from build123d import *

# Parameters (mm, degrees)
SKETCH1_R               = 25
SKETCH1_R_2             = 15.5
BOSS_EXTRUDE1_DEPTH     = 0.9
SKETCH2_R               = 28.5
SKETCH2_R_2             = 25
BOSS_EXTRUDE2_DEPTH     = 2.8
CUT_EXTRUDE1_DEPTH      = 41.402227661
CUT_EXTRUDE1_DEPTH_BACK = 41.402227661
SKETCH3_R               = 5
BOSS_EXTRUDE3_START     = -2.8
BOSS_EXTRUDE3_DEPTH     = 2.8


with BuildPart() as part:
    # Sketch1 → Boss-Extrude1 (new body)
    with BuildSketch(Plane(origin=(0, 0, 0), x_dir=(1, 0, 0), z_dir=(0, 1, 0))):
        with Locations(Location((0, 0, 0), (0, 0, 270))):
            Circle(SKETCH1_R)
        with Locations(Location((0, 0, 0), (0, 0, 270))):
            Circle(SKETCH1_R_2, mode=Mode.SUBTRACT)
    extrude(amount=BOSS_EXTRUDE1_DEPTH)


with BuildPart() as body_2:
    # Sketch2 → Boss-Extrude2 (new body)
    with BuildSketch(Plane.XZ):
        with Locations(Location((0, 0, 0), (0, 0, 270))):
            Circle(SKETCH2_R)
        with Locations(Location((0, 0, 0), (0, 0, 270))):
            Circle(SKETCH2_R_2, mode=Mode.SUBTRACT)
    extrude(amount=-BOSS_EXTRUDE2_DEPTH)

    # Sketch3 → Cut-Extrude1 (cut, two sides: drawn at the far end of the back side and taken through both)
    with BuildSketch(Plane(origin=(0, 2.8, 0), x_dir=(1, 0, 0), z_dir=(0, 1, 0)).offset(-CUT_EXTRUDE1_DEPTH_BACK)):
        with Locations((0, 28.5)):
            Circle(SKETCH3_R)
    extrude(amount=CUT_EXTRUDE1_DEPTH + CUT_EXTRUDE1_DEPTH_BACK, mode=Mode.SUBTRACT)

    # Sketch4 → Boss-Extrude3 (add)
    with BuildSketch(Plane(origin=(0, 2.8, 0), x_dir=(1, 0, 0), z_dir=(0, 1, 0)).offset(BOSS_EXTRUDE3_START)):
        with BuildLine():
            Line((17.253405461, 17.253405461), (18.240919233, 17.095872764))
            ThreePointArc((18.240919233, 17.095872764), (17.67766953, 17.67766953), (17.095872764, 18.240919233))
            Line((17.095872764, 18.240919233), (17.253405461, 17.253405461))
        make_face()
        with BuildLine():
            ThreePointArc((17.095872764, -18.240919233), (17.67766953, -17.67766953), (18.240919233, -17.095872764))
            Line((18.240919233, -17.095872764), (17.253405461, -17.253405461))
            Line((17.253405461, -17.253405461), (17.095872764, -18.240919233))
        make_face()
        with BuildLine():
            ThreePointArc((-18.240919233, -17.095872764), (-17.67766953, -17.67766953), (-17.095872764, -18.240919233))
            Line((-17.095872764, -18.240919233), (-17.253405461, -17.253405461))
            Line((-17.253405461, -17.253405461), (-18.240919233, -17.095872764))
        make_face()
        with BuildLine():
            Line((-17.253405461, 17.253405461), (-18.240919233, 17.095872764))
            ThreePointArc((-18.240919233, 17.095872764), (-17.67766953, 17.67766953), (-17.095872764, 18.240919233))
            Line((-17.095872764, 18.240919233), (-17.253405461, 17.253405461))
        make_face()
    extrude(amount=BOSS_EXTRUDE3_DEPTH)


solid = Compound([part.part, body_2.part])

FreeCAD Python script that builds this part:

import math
import FreeCAD as App
import Part
import Sketcher

doc = App.newDocument("Part")
body = doc.addObject("PartDesign::Body", "Body")

# Sketch on XZ plane
sketch1 = body.newObject("Sketcher::SketchObject", "Sketch")
sketch1.AttachmentSupport = (doc.getObject("XZ_Plane"), [""])
sketch1.MapMode = "FlatFace"
sketch1.addGeometry([
    Part.Circle(App.Vector(0, 0, 0), App.Vector(0, 0, 1), 25),
    Part.Circle(App.Vector(0, 0, 0), App.Vector(0, 0, 1), 16),
], False)
sketch1.addConstraint([
    Sketcher.Constraint("Coincident", 0, 3, -1, 1),
    Sketcher.Constraint("Coincident", 1, 3, -1, 1),
    Sketcher.Constraint("Diameter", 0, 50.0),
    Sketcher.Constraint("Diameter", 1, 31.0),
])
pad1 = body.newObject("PartDesign::Pad", "Pad")
pad1.Profile = sketch1
pad1.Length = 0.9
pad1.Reversed = True
body2 = doc.addObject("PartDesign::Body", "Body001")

# Sketch on XZ plane
sketch2 = body2.newObject("Sketcher::SketchObject", "Sketch001")
sketch2.AttachmentSupport = (doc.getObject("XZ_Plane001"), [""])
sketch2.MapMode = "FlatFace"
sketch2.addGeometry([
    Part.Circle(App.Vector(0, 0, 0), App.Vector(0, 0, 1), 28),
    Part.Circle(App.Vector(0, 0, 0), App.Vector(0, 0, 1), 25),
], False)
sketch2.addConstraint([
    Sketcher.Constraint("Coincident", 0, 3, -1, 1),
    Sketcher.Constraint("Coincident", 1, 3, -1, 1),
    Sketcher.Constraint("Diameter", 0, 57.0),
    Sketcher.Constraint("Diameter", 1, 50.0),
])
pad2 = body2.newObject("PartDesign::Pad", "Pad001")
pad2.Profile = sketch2
pad2.Length = 2.8
pad2.Reversed = True

# Sketch on XZ plane
sketch3 = body2.newObject("Sketcher::SketchObject", "Sketch002")
sketch3.AttachmentSupport = (doc.getObject("XZ_Plane001"), [""])
sketch3.MapMode = "FlatFace"
sketch3.AttachmentOffset = App.Placement(App.Vector(0, 0, -2.8), App.Rotation())
sketch3.addGeometry(Part.Circle(App.Vector(0, -28, 0), App.Vector(0, 0, 1), 5), False)
sketch3.addConstraint([
    Sketcher.Constraint("PointOnObject", 0, 3, -2),
    Sketcher.Constraint("Diameter", 0, 10.0),
    Sketcher.Constraint("DistanceY", 0, 3, -1, 1, 28.5),
])
pocket1 = body2.newObject("PartDesign::Pocket", "Pocket")
pocket1.Profile = sketch3
pocket1.Type = "ThroughAll"
pocket1.Midplane = True

# Sketch on XZ plane
sketch4 = body2.newObject("Sketcher::SketchObject", "Sketch003")
sketch4.AttachmentSupport = (doc.getObject("XZ_Plane001"), [""])
sketch4.MapMode = "FlatFace"
sketch4.addGeometry([
    Part.LineSegment(App.Vector(17.3, -17.3, 0), App.Vector(18.2, -17.1, 0)),  # 0
    Part.ArcOfCircle(Part.Circle(App.Vector(0, 0, 0), App.Vector(0, 0, 1), 25), math.radians(-46.86), math.radians(-43.14)),  # 1
    Part.LineSegment(App.Vector(17.1, -18.2, 0), App.Vector(17.3, -17.3, 0)),  # 2
    Part.ArcOfCircle(Part.Circle(App.Vector(0, 0, 0), App.Vector(0, 0, 1), 25), math.radians(43.14), math.radians(46.86)),  # 3
    Part.LineSegment(App.Vector(18.2, 17.1, 0), App.Vector(17.3, 17.3, 0)),  # 4
    Part.LineSegment(App.Vector(17.3, 17.3, 0), App.Vector(17.1, 18.2, 0)),  # 5
    Part.ArcOfCircle(Part.Circle(App.Vector(0, 0, 0), App.Vector(0, 0, 1), 25), math.radians(133.14), math.radians(136.86)),  # 6
    Part.LineSegment(App.Vector(-17.1, 18.2, 0), App.Vector(-17.3, 17.3, 0)),  # 7
    Part.LineSegment(App.Vector(-17.3, 17.3, 0), App.Vector(-18.2, 17.1, 0)),  # 8
    Part.LineSegment(App.Vector(-18.2, -17.1, 0), App.Vector(-17.3, -17.3, 0)),  # 9
    Part.LineSegment(App.Vector(-17.3, -17.3, 0), App.Vector(-17.1, -18.2, 0)),  # 10
    Part.ArcOfCircle(Part.Circle(App.Vector(0, 0, 0), App.Vector(0, 0, 1), 25), math.radians(-136.86), math.radians(-133.14)),  # 11
], False)
sketch4.addConstraint([
    Sketcher.Constraint("Coincident", 0, 2, 1, 2),
    Sketcher.Constraint("Coincident", 1, 1, 2, 1),
    Sketcher.Constraint("Coincident", 2, 2, 0, 1),
    Sketcher.Constraint("Coincident", 3, 1, 4, 1),
    Sketcher.Constraint("Coincident", 4, 2, 5, 1),
    Sketcher.Constraint("Coincident", 5, 2, 3, 2),
    Sketcher.Constraint("Coincident", 6, 1, 7, 1),
    Sketcher.Constraint("Coincident", 7, 2, 8, 1),
    Sketcher.Constraint("Coincident", 8, 2, 6, 2),
    Sketcher.Constraint("Coincident", 9, 2, 10, 1),
    Sketcher.Constraint("Coincident", 10, 2, 11, 2),
    Sketcher.Constraint("Coincident", 11, 1, 9, 1),
    Sketcher.Constraint("Coincident", 1, 3, -1, 1),
    Sketcher.Constraint("Coincident", 3, 3, -1, 1),
    Sketcher.Constraint("Coincident", 6, 3, -1, 1),
    Sketcher.Constraint("Coincident", 11, 3, -1, 1),
    Sketcher.Constraint("Equal", 1, 3),
    Sketcher.Constraint("Equal", 3, 6),
    Sketcher.Constraint("Equal", 6, 11),
    Sketcher.Constraint("Symmetric", 2, 2, 7, 2, -1, 1),
    Sketcher.Constraint("Symmetric", 4, 2, 9, 2, -1, 1),
    Sketcher.Constraint("Symmetric", 4, 2, 7, 2, -2),
    Sketcher.Constraint("Perpendicular", 2, 4),
    Sketcher.Constraint("Perpendicular", 0, 5),
    Sketcher.Constraint("Perpendicular", 4, 7),
    Sketcher.Constraint("Perpendicular", 5, 8),
    Sketcher.Constraint("Perpendicular", 7, 9),
    Sketcher.Constraint("Perpendicular", 8, 10),
    Sketcher.Constraint("Horizontal", 5, 2, 6, 1),
    Sketcher.Constraint("Equal", 0, 2),
    Sketcher.Constraint("Radius", 1, 25.0),
    Sketcher.Constraint("Distance", 0, 1.0),
    Sketcher.Constraint("DistanceX", -1, 1, 0, 2, 18.240919),
])
pad3 = body2.newObject("PartDesign::Pad", "Pad002")
pad3.Profile = sketch4
pad3.Length = 2.8
pad3.Reversed = True

doc.recompute()
